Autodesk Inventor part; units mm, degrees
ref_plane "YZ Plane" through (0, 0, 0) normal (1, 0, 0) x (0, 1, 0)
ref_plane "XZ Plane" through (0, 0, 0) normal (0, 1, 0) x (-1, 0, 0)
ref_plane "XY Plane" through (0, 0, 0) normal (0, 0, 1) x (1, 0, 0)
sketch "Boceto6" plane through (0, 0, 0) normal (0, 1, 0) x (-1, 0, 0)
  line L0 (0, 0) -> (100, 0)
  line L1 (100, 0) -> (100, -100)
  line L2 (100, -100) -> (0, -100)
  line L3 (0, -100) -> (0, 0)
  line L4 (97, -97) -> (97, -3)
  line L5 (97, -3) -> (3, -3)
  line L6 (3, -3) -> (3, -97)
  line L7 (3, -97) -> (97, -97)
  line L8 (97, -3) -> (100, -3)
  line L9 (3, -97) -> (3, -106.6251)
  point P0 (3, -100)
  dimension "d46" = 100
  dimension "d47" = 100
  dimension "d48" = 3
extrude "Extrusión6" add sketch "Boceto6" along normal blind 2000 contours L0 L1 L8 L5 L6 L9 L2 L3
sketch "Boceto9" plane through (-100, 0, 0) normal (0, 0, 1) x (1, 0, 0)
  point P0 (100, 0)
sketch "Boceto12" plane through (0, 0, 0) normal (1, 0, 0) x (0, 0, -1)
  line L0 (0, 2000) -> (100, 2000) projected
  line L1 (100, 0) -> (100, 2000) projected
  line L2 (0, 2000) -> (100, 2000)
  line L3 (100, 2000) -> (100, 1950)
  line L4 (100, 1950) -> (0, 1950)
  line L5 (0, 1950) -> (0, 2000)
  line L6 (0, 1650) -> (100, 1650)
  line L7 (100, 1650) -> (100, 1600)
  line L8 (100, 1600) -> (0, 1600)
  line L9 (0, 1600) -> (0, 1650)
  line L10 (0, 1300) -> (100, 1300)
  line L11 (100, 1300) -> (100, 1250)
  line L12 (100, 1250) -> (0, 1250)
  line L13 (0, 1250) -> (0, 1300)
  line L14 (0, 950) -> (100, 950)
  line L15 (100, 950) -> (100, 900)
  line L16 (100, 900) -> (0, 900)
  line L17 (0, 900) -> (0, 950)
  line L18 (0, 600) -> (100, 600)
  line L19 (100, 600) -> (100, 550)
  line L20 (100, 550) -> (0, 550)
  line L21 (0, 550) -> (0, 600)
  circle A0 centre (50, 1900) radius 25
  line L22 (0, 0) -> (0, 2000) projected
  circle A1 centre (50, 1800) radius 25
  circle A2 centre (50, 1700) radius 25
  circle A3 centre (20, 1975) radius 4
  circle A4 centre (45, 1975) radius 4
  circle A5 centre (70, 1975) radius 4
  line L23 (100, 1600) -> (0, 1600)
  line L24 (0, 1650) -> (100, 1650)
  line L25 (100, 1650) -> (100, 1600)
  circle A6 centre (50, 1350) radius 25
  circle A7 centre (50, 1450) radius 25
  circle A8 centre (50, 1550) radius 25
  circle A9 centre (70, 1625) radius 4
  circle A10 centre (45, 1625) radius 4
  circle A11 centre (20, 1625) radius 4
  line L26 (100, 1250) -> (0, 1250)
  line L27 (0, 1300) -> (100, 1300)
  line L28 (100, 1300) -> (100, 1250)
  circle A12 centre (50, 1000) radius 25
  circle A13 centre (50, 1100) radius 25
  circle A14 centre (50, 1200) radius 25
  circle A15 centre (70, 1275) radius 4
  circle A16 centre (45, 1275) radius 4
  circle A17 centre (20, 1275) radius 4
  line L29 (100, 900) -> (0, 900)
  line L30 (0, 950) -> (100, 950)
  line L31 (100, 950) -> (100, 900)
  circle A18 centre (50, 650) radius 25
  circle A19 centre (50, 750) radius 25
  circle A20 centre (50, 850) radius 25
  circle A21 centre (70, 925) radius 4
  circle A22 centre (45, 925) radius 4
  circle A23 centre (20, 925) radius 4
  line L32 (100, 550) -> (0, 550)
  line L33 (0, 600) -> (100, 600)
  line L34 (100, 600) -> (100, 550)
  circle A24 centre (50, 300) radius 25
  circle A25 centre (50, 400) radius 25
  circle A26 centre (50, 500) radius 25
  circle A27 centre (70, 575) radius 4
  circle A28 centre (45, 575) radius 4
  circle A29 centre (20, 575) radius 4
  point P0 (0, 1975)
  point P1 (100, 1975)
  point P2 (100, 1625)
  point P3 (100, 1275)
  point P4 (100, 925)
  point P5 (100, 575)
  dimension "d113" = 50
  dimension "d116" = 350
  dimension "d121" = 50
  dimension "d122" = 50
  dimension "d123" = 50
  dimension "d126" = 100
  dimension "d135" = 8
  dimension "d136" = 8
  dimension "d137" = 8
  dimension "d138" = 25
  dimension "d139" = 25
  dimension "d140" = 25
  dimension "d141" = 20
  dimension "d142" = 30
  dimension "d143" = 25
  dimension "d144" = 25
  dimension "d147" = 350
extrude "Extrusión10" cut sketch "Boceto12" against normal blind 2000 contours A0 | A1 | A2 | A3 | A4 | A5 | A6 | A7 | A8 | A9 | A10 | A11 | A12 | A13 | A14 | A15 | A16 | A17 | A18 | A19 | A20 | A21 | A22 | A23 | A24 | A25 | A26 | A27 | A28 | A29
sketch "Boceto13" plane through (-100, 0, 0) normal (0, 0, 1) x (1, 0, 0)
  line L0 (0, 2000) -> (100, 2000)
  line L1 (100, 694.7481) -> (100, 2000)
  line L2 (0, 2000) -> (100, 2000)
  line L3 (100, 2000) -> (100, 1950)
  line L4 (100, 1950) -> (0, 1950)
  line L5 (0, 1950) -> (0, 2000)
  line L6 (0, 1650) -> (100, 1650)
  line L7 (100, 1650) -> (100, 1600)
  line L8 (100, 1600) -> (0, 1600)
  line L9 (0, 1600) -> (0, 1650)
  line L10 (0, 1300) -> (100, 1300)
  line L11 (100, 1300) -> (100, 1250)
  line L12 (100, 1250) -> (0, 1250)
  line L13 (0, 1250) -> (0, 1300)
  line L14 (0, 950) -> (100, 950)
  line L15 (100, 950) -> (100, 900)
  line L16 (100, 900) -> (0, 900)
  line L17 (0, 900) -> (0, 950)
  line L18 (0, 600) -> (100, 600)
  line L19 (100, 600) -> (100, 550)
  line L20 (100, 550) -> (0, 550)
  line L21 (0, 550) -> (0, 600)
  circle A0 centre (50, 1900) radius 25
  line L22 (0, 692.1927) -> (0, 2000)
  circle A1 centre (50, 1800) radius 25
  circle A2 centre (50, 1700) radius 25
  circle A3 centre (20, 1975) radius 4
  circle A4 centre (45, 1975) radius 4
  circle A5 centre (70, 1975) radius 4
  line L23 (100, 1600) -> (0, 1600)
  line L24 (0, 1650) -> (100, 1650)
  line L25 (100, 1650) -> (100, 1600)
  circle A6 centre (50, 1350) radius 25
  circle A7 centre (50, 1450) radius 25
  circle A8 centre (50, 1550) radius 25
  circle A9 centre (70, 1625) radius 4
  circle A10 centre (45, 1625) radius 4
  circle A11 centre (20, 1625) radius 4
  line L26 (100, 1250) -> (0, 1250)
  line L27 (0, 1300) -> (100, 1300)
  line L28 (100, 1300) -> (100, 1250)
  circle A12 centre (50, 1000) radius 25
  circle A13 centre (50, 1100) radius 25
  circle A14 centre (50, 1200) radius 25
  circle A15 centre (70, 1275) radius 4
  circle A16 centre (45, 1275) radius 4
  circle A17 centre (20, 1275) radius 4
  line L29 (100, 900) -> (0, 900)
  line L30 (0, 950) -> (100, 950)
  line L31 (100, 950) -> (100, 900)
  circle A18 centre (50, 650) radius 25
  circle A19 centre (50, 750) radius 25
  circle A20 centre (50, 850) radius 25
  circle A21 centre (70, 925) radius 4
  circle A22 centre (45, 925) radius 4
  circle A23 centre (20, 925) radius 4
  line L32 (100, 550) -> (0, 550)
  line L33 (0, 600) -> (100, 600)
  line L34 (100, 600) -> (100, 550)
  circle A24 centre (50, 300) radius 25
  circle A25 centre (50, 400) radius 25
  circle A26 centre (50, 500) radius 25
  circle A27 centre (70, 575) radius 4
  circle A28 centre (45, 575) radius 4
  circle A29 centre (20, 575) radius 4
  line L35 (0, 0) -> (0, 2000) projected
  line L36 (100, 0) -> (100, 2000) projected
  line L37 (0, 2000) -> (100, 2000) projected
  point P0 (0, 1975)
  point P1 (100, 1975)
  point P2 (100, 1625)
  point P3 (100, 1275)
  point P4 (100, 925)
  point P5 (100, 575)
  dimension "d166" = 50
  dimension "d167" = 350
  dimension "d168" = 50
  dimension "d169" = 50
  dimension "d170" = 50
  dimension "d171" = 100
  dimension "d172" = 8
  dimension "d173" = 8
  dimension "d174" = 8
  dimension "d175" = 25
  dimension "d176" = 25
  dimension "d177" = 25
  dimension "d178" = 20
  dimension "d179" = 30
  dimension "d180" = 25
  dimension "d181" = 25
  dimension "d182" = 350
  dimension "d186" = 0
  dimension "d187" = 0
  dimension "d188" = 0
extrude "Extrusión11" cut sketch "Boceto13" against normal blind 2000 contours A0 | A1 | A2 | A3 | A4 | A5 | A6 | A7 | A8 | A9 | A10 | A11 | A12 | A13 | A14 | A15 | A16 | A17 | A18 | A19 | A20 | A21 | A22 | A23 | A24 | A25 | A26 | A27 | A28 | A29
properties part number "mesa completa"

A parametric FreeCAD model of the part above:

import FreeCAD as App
import Part
import Sketcher
from FreeCAD import Vector

doc = App.newDocument("Part")
params = doc.addObject("Spreadsheet::Sheet", "Params")
for row, (alias, value) in enumerate([
    ("sketch1_width", "100 mm"),
    ("sketch1_width2", "3 mm"),
    ("pad1_length", "2000 mm"),
    ("sketch2_diameter", "50 mm"),
    ("sketch2_diameter2", "8 mm"),
    ("pocket1_length", "2000 mm"),
    ("sketch3_diameter", "50 mm"),
    ("sketch3_diameter2", "8 mm"),
    ("pocket2_length", "2000 mm"),
], start=1):
    params.set(f"A{row}", alias)
    params.set(f"B{row}", "=" + value)
    params.setAlias(f"B{row}", alias)

body = doc.addObject("PartDesign::Body", "Body")

# Sketch on XZ plane
sketch1 = doc.addObject("Sketcher::SketchObject", "Sketch")
body.addObject(sketch1)
sketch1.AttachmentSupport = (doc.XZ_Plane, [""])
sketch1.MapMode = "FlatFace"
sketch1.addGeometry([
    Part.LineSegment(Vector(-100, 0, 0), Vector(0, 0, 0)),  # 0
    Part.LineSegment(Vector(0, 0, 0), Vector(0, -100, 0)),  # 1
    Part.LineSegment(Vector(0, -100, 0), Vector(-3, -100, 0)),  # 2
    Part.LineSegment(Vector(-3, -100, 0), Vector(-3, -3, 0)),  # 3
    Part.LineSegment(Vector(-3, -3, 0), Vector(-100, -3, 0)),  # 4
    Part.LineSegment(Vector(-100, -3, 0), Vector(-100, 0, 0)),  # 5
], False)
sketch1.addConstraint([
    Sketcher.Constraint("Coincident", 0, 2, 1, 1),
    Sketcher.Constraint("Coincident", 1, 2, 2, 1),
    Sketcher.Constraint("Coincident", 2, 2, 3, 1),
    Sketcher.Constraint("Coincident", 3, 2, 4, 1),
    Sketcher.Constraint("Coincident", 4, 2, 5, 1),
    Sketcher.Constraint("Coincident", 5, 2, 0, 1),
    Sketcher.Constraint("Horizontal", 0),
    Sketcher.Constraint("Vertical", 1),
    Sketcher.Constraint("Horizontal", 2),
    Sketcher.Constraint("Vertical", 3),
    Sketcher.Constraint("Horizontal", 4),
    Sketcher.Constraint("Vertical", 5),
    Sketcher.Constraint("Coincident", 0, 2, -1, 1),
    Sketcher.Constraint("Equal", 0, 1),
    Sketcher.Constraint("Equal", 4, 3),
    Sketcher.Constraint("DistanceX", 0, 1, 0, 2, 100.0),
    Sketcher.Constraint("DistanceX", 2, 2, 2, 1, 3.0),
])
sketch1.setExpression("Constraints[15]", "Params.sketch1_width")
sketch1.setExpression("Constraints[16]", "Params.sketch1_width2")
pad1 = doc.addObject("PartDesign::Pad", "Pad")
body.addObject(pad1)
pad1.Profile = sketch1
pad1.setExpression("Length", "Params.pad1_length")
pad1.Reversed = True

# Sketch on YZ plane
sketch2 = doc.addObject("Sketcher::SketchObject", "Sketch001")
body.addObject(sketch2)
sketch2.AttachmentSupport = (doc.YZ_Plane, [""])
sketch2.MapMode = "FlatFace"
sketch2.addGeometry([
    Part.Circle(Vector(1900, -50, 0), Vector(0, 0, 1), 25),  # 0
    Part.Circle(Vector(1800, -50, 0), Vector(0, 0, 1), 25),  # 1
    Part.Circle(Vector(1700, -50, 0), Vector(0, 0, 1), 25),  # 2
    Part.Circle(Vector(1975, -20, 0), Vector(0, 0, 1), 4),  # 3
    Part.Circle(Vector(1975, -45, 0), Vector(0, 0, 1), 4),  # 4
    Part.Circle(Vector(1975, -70, 0), Vector(0, 0, 1), 4),  # 5
    Part.Circle(Vector(1350, -50, 0), Vector(0, 0, 1), 25),  # 6
    Part.Circle(Vector(1450, -50, 0), Vector(0, 0, 1), 25),  # 7
    Part.Circle(Vector(1550, -50, 0), Vector(0, 0, 1), 25),  # 8
    Part.Circle(Vector(1625, -70, 0), Vector(0, 0, 1), 4),  # 9
    Part.Circle(Vector(1625, -45, 0), Vector(0, 0, 1), 4),  # 10
    Part.Circle(Vector(1625, -20, 0), Vector(0, 0, 1), 4),  # 11
    Part.Circle(Vector(1000, -50, 0), Vector(0, 0, 1), 25),  # 12
    Part.Circle(Vector(1100, -50, 0), Vector(0, 0, 1), 25),  # 13
    Part.Circle(Vector(1200, -50, 0), Vector(0, 0, 1), 25),  # 14
    Part.Circle(Vector(1275, -70, 0), Vector(0, 0, 1), 4),  # 15
    Part.Circle(Vector(1275, -45, 0), Vector(0, 0, 1), 4),  # 16
    Part.Circle(Vector(1275, -20, 0), Vector(0, 0, 1), 4),  # 17
    Part.Circle(Vector(650, -50, 0), Vector(0, 0, 1), 25),  # 18
    Part.Circle(Vector(750, -50, 0), Vector(0, 0, 1), 25),  # 19
    Part.Circle(Vector(850, -50, 0), Vector(0, 0, 1), 25),  # 20
    Part.Circle(Vector(925, -70, 0), Vector(0, 0, 1), 4),  # 21
    Part.Circle(Vector(925, -45, 0), Vector(0, 0, 1), 4),  # 22
    Part.Circle(Vector(925, -20, 0), Vector(0, 0, 1), 4),  # 23
    Part.Circle(Vector(300, -50, 0), Vector(0, 0, 1), 25),  # 24
    Part.Circle(Vector(400, -50, 0), Vector(0, 0, 1), 25),  # 25
    Part.Circle(Vector(500, -50, 0), Vector(0, 0, 1), 25),  # 26
    Part.Circle(Vector(575, -70, 0), Vector(0, 0, 1), 4),  # 27
    Part.Circle(Vector(575, -45, 0), Vector(0, 0, 1), 4),  # 28
    Part.Circle(Vector(575, -20, 0), Vector(0, 0, 1), 4),  # 29
], False)
sketch2.addConstraint([
    Sketcher.Constraint("Equal", 0, 1),
    Sketcher.Constraint("Equal", 1, 2),
    Sketcher.Constraint("Equal", 3, 4),
    Sketcher.Constraint("Equal", 4, 5),
    Sketcher.Constraint("Equal", 2, 6),
    Sketcher.Constraint("Equal", 6, 7),
    Sketcher.Constraint("Equal", 7, 8),
    Sketcher.Constraint("Equal", 5, 9),
    Sketcher.Constraint("Equal", 9, 10),
    Sketcher.Constraint("Equal", 10, 11),
    Sketcher.Constraint("Equal", 8, 12),
    Sketcher.Constraint("Equal", 12, 13),
    Sketcher.Constraint("Equal", 13, 14),
    Sketcher.Constraint("Equal", 11, 15),
    Sketcher.Constraint("Equal", 15, 16),
    Sketcher.Constraint("Equal", 16, 17),
    Sketcher.Constraint("Equal", 14, 18),
    Sketcher.Constraint("Equal", 18, 19),
    Sketcher.Constraint("Equal", 19, 20),
    Sketcher.Constraint("Equal", 17, 21),
    Sketcher.Constraint("Equal", 21, 22),
    Sketcher.Constraint("Equal", 22, 23),
    Sketcher.Constraint("Equal", 20, 24),
    Sketcher.Constraint("Equal", 24, 25),
    Sketcher.Constraint("Equal", 25, 26),
    Sketcher.Constraint("Equal", 23, 27),
    Sketcher.Constraint("Equal", 27, 28),
    Sketcher.Constraint("Equal", 28, 29),
    Sketcher.Constraint("Horizontal", 0, 3, 1, 3),
    Sketcher.Constraint("Horizontal", 1, 3, 2, 3),
    Sketcher.Constraint("Horizontal", 2, 3, 6, 3),
    Sketcher.Constraint("Horizontal", 6, 3, 7, 3),
    Sketcher.Constraint("Horizontal", 7, 3, 8, 3),
    Sketcher.Constraint("Horizontal", 5, 3, 9, 3),
    Sketcher.Constraint("Horizontal", 4, 3, 10, 3),
    Sketcher.Constraint("Horizontal", 3, 3, 11, 3),
    Sketcher.Constraint("Horizontal", 8, 3, 12, 3),
    Sketcher.Constraint("Horizontal", 12, 3, 13, 3),
    Sketcher.Constraint("Horizontal", 13, 3, 14, 3),
    Sketcher.Constraint("Horizontal", 9, 3, 15, 3),
    Sketcher.Constraint("Horizontal", 10, 3, 16, 3),
    Sketcher.Constraint("Horizontal", 11, 3, 17, 3),
    Sketcher.Constraint("Horizontal", 14, 3, 18, 3),
    Sketcher.Constraint("Horizontal", 18, 3, 19, 3),
    Sketcher.Constraint("Horizontal", 19, 3, 20, 3),
    Sketcher.Constraint("Horizontal", 15, 3, 21, 3),
    Sketcher.Constraint("Horizontal", 16, 3, 22, 3),
    Sketcher.Constraint("Horizontal", 17, 3, 23, 3),
    Sketcher.Constraint("Horizontal", 20, 3, 24, 3),
    Sketcher.Constraint("Horizontal", 24, 3, 25, 3),
    Sketcher.Constraint("Horizontal", 25, 3, 26, 3),
    Sketcher.Constraint("Horizontal", 21, 3, 27, 3),
    Sketcher.Constraint("Horizontal", 22, 3, 28, 3),
    Sketcher.Constraint("Horizontal", 23, 3, 29, 3),
    Sketcher.Constraint("Vertical", 3, 3, 4, 3),
    Sketcher.Constraint("Vertical", 4, 3, 5, 3),
    Sketcher.Constraint("Vertical", 9, 3, 10, 3),
    Sketcher.Constraint("Vertical", 10, 3, 11, 3),
    Sketcher.Constraint("Vertical", 15, 3, 16, 3),
    Sketcher.Constraint("Vertical", 16, 3, 17, 3),
    Sketcher.Constraint("Vertical", 21, 3, 22, 3),
    Sketcher.Constraint("Vertical", 22, 3, 23, 3),
    Sketcher.Constraint("Vertical", 27, 3, 28, 3),
    Sketcher.Constraint("Vertical", 28, 3, 29, 3),
    Sketcher.Constraint("Diameter", 0, 50.0),
    Sketcher.Constraint("Diameter", 3, 8.0),
    Sketcher.Constraint("DistanceY", 0, 3, -1, 1, 50.0),
    Sketcher.Constraint("DistanceY", 3, 3, -1, 1, 20.0),
    Sketcher.Constraint("DistanceX", 1, 3, 0, 3, 100.0),
    Sketcher.Constraint("DistanceX", 2, 3, 1, 3, 100.0),
    Sketcher.Constraint("DistanceY", 4, 3, 3, 3, 25.0),
    Sketcher.Constraint("DistanceY", 5, 3, 4, 3, 25.0),
    Sketcher.Constraint("DistanceX", 6, 3, 2, 3, 350.0),
    Sketcher.Constraint("DistanceX", 6, 3, 7, 3, 100.0),
    Sketcher.Constraint("DistanceX", 7, 3, 8, 3, 100.0),
    Sketcher.Constraint("DistanceX", 12, 3, 6, 3, 350.0),
    Sketcher.Constraint("DistanceX", 12, 3, 13, 3, 100.0),
    Sketcher.Constraint("DistanceX", 13, 3, 14, 3, 100.0),
    Sketcher.Constraint("DistanceX", 18, 3, 12, 3, 350.0),
    Sketcher.Constraint("DistanceX", 18, 3, 19, 3, 100.0),
    Sketcher.Constraint("DistanceX", 19, 3, 20, 3, 100.0),
    Sketcher.Constraint("DistanceX", 24, 3, 18, 3, 350.0),
    Sketcher.Constraint("DistanceX", 24, 3, 25, 3, 100.0),
    Sketcher.Constraint("DistanceX", 25, 3, 26, 3, 100.0),
    Sketcher.Constraint("DistanceX", -1, 1, 0, 3, 1900.0),
    Sketcher.Constraint("DistanceX", -1, 1, 3, 3, 1975.0),
    Sketcher.Constraint("DistanceX", -1, 1, 9, 3, 1625.0),
    Sketcher.Constraint("DistanceX", -1, 1, 15, 3, 1275.0),
    Sketcher.Constraint("DistanceX", -1, 1, 21, 3, 925.0),
    Sketcher.Constraint("DistanceX", -1, 1, 27, 3, 575.0),
])
sketch2.setExpression("Constraints[64]", "Params.sketch2_diameter")
sketch2.setExpression("Constraints[65]", "Params.sketch2_diameter2")
pocket1 = doc.addObject("PartDesign::Pocket", "Pocket")
body.addObject(pocket1)
pocket1.Profile = sketch2
pocket1.setExpression("Length", "Params.pocket1_length")

# Sketch on XY plane
sketch3 = doc.addObject("Sketcher::SketchObject", "Sketch002")
body.addObject(sketch3)
sketch3.AttachmentSupport = (doc.XY_Plane, [""])
sketch3.MapMode = "FlatFace"
sketch3.addGeometry([
    Part.Circle(Vector(-50, 1900, 0), Vector(0, 0, 1), 25),  # 0
    Part.Circle(Vector(-50, 1800, 0), Vector(0, 0, 1), 25),  # 1
    Part.Circle(Vector(-50, 1700, 0), Vector(0, 0, 1), 25),  # 2
    Part.Circle(Vector(-80, 1975, 0), Vector(0, 0, 1), 4),  # 3
    Part.Circle(Vector(-55, 1975, 0), Vector(0, 0, 1), 4),  # 4
    Part.Circle(Vector(-30, 1975, 0), Vector(0, 0, 1), 4),  # 5
    Part.Circle(Vector(-50, 1350, 0), Vector(0, 0, 1), 25),  # 6
    Part.Circle(Vector(-50, 1450, 0), Vector(0, 0, 1), 25),  # 7
    Part.Circle(Vector(-50, 1550, 0), Vector(0, 0, 1), 25),  # 8
    Part.Circle(Vector(-30, 1625, 0), Vector(0, 0, 1), 4),  # 9
    Part.Circle(Vector(-55, 1625, 0), Vector(0, 0, 1), 4),  # 10
    Part.Circle(Vector(-80, 1625, 0), Vector(0, 0, 1), 4),  # 11
    Part.Circle(Vector(-50, 1000, 0), Vector(0, 0, 1), 25),  # 12
    Part.Circle(Vector(-50, 1100, 0), Vector(0, 0, 1), 25),  # 13
    Part.Circle(Vector(-50, 1200, 0), Vector(0, 0, 1), 25),  # 14
    Part.Circle(Vector(-30, 1275, 0), Vector(0, 0, 1), 4),  # 15
    Part.Circle(Vector(-55, 1275, 0), Vector(0, 0, 1), 4),  # 16
    Part.Circle(Vector(-80, 1275, 0), Vector(0, 0, 1), 4),  # 17
    Part.Circle(Vector(-50, 650, 0), Vector(0, 0, 1), 25),  # 18
    Part.Circle(Vector(-50, 750, 0), Vector(0, 0, 1), 25),  # 19
    Part.Circle(Vector(-50, 850, 0), Vector(0, 0, 1), 25),  # 20
    Part.Circle(Vector(-30, 925, 0), Vector(0, 0, 1), 4),  # 21
    Part.Circle(Vector(-55, 925, 0), Vector(0, 0, 1), 4),  # 22
    Part.Circle(Vector(-80, 925, 0), Vector(0, 0, 1), 4),  # 23
    Part.Circle(Vector(-50, 300, 0), Vector(0, 0, 1), 25),  # 24
    Part.Circle(Vector(-50, 400, 0), Vector(0, 0, 1), 25),  # 25
    Part.Circle(Vector(-50, 500, 0), Vector(0, 0, 1), 25),  # 26
    Part.Circle(Vector(-30, 575, 0), Vector(0, 0, 1), 4),  # 27
    Part.Circle(Vector(-55, 575, 0), Vector(0, 0, 1), 4),  # 28
    Part.Circle(Vector(-80, 575, 0), Vector(0, 0, 1), 4),  # 29
], False)
sketch3.addConstraint([
    Sketcher.Constraint("Equal", 0, 1),
    Sketcher.Constraint("Equal", 1, 2),
    Sketcher.Constraint("Equal", 3, 4),
    Sketcher.Constraint("Equal", 4, 5),
    Sketcher.Constraint("Equal", 2, 6),
    Sketcher.Constraint("Equal", 6, 7),
    Sketcher.Constraint("Equal", 7, 8),
    Sketcher.Constraint("Equal", 5, 9),
    Sketcher.Constraint("Equal", 9, 10),
    Sketcher.Constraint("Equal", 10, 11),
    Sketcher.Constraint("Equal", 8, 12),
    Sketcher.Constraint("Equal", 12, 13),
    Sketcher.Constraint("Equal", 13, 14),
    Sketcher.Constraint("Equal", 11, 15),
    Sketcher.Constraint("Equal", 15, 16),
    Sketcher.Constraint("Equal", 16, 17),
    Sketcher.Constraint("Equal", 14, 18),
    Sketcher.Constraint("Equal", 18, 19),
    Sketcher.Constraint("Equal", 19, 20),
    Sketcher.Constraint("Equal", 17, 21),
    Sketcher.Constraint("Equal", 21, 22),
    Sketcher.Constraint("Equal", 22, 23),
    Sketcher.Constraint("Equal", 20, 24),
    Sketcher.Constraint("Equal", 24, 25),
    Sketcher.Constraint("Equal", 25, 26),
    Sketcher.Constraint("Equal", 23, 27),
    Sketcher.Constraint("Equal", 27, 28),
    Sketcher.Constraint("Equal", 28, 29),
    Sketcher.Constraint("Horizontal", 3, 3, 4, 3),
    Sketcher.Constraint("Horizontal", 4, 3, 5, 3),
    Sketcher.Constraint("Horizontal", 9, 3, 10, 3),
    Sketcher.Constraint("Horizontal", 10, 3, 11, 3),
    Sketcher.Constraint("Horizontal", 15, 3, 16, 3),
    Sketcher.Constraint("Horizontal", 16, 3, 17, 3),
    Sketcher.Constraint("Horizontal", 21, 3, 22, 3),
    Sketcher.Constraint("Horizontal", 22, 3, 23, 3),
    Sketcher.Constraint("Horizontal", 27, 3, 28, 3),
    Sketcher.Constraint("Horizontal", 28, 3, 29, 3),
    Sketcher.Constraint("Vertical", 0, 3, 1, 3),
    Sketcher.Constraint("Vertical", 1, 3, 2, 3),
    Sketcher.Constraint("Vertical", 2, 3, 6, 3),
    Sketcher.Constraint("Vertical", 6, 3, 7, 3),
    Sketcher.Constraint("Vertical", 7, 3, 8, 3),
    Sketcher.Constraint("Vertical", 5, 3, 9, 3),
    Sketcher.Constraint("Vertical", 4, 3, 10, 3),
    Sketcher.Constraint("Vertical", 3, 3, 11, 3),
    Sketcher.Constraint("Vertical", 8, 3, 12, 3),
    Sketcher.Constraint("Vertical", 12, 3, 13, 3),
    Sketcher.Constraint("Vertical", 13, 3, 14, 3),
    Sketcher.Constraint("Vertical", 9, 3, 15, 3),
    Sketcher.Constraint("Vertical", 10, 3, 16, 3),
    Sketcher.Constraint("Vertical", 11, 3, 17, 3),
    Sketcher.Constraint("Vertical", 14, 3, 18, 3),
    Sketcher.Constraint("Vertical", 18, 3, 19, 3),
    Sketcher.Constraint("Vertical", 19, 3, 20, 3),
    Sketcher.Constraint("Vertical", 15, 3, 21, 3),
    Sketcher.Constraint("Vertical", 16, 3, 22, 3),
    Sketcher.Constraint("Vertical", 17, 3, 23, 3),
    Sketcher.Constraint("Vertical", 20, 3, 24, 3),
    Sketcher.Constraint("Vertical", 24, 3, 25, 3),
    Sketcher.Constraint("Vertical", 25, 3, 26, 3),
    Sketcher.Constraint("Vertical", 21, 3, 27, 3),
    Sketcher.Constraint("Vertical", 22, 3, 28, 3),
    Sketcher.Constraint("Vertical", 23, 3, 29, 3),
    Sketcher.Constraint("Diameter", 0, 50.0),
    Sketcher.Constraint("Diameter", 3, 8.0),
    Sketcher.Constraint("DistanceX", 0, 3, -1, 1, 50.0),
    Sketcher.Constraint("DistanceX", 5, 3, -1, 1, 30.0),
    Sketcher.Constraint("DistanceY", 1, 3, 0, 3, 100.0),
    Sketcher.Constraint("DistanceY", 2, 3, 1, 3, 100.0),
    Sketcher.Constraint("DistanceX", 3, 3, 0, 3, 30.0),
    Sketcher.Constraint("DistanceX", 3, 3, 4, 3, 25.0),
    Sketcher.Constraint("DistanceY", 6, 3, 2, 3, 350.0),
    Sketcher.Constraint("DistanceY", 6, 3, 7, 3, 100.0),
    Sketcher.Constraint("DistanceY", 7, 3, 8, 3, 100.0),
    Sketcher.Constraint("DistanceY", 12, 3, 6, 3, 350.0),
    Sketcher.Constraint("DistanceY", 12, 3, 13, 3, 100.0),
    Sketcher.Constraint("DistanceY", 13, 3, 14, 3, 100.0),
    Sketcher.Constraint("DistanceY", 18, 3, 12, 3, 350.0),
    Sketcher.Constraint("DistanceY", 18, 3, 19, 3, 100.0),
    Sketcher.Constraint("DistanceY", 19, 3, 20, 3, 100.0),
    Sketcher.Constraint("DistanceY", 24, 3, 18, 3, 350.0),
    Sketcher.Constraint("DistanceY", 24, 3, 25, 3, 100.0),
    Sketcher.Constraint("DistanceY", 25, 3, 26, 3, 100.0),
    Sketcher.Constraint("DistanceY", -1, 1, 0, 3, 1900.0),
    Sketcher.Constraint("DistanceY", -1, 1, 3, 3, 1975.0),
    Sketcher.Constraint("DistanceY", -1, 1, 9, 3, 1625.0),
    Sketcher.Constraint("DistanceY", -1, 1, 15, 3, 1275.0),
    Sketcher.Constraint("DistanceY", -1, 1, 21, 3, 925.0),
    Sketcher.Constraint("DistanceY", -1, 1, 27, 3, 575.0),
])
sketch3.setExpression("Constraints[64]", "Params.sketch3_diameter")
sketch3.setExpression("Constraints[65]", "Params.sketch3_diameter2")
pocket2 = doc.addObject("PartDesign::Pocket", "Pocket001")
body.addObject(pocket2)
pocket2.Profile = sketch3
pocket2.setExpression("Length", "Params.pocket2_length")

doc.recompute()
